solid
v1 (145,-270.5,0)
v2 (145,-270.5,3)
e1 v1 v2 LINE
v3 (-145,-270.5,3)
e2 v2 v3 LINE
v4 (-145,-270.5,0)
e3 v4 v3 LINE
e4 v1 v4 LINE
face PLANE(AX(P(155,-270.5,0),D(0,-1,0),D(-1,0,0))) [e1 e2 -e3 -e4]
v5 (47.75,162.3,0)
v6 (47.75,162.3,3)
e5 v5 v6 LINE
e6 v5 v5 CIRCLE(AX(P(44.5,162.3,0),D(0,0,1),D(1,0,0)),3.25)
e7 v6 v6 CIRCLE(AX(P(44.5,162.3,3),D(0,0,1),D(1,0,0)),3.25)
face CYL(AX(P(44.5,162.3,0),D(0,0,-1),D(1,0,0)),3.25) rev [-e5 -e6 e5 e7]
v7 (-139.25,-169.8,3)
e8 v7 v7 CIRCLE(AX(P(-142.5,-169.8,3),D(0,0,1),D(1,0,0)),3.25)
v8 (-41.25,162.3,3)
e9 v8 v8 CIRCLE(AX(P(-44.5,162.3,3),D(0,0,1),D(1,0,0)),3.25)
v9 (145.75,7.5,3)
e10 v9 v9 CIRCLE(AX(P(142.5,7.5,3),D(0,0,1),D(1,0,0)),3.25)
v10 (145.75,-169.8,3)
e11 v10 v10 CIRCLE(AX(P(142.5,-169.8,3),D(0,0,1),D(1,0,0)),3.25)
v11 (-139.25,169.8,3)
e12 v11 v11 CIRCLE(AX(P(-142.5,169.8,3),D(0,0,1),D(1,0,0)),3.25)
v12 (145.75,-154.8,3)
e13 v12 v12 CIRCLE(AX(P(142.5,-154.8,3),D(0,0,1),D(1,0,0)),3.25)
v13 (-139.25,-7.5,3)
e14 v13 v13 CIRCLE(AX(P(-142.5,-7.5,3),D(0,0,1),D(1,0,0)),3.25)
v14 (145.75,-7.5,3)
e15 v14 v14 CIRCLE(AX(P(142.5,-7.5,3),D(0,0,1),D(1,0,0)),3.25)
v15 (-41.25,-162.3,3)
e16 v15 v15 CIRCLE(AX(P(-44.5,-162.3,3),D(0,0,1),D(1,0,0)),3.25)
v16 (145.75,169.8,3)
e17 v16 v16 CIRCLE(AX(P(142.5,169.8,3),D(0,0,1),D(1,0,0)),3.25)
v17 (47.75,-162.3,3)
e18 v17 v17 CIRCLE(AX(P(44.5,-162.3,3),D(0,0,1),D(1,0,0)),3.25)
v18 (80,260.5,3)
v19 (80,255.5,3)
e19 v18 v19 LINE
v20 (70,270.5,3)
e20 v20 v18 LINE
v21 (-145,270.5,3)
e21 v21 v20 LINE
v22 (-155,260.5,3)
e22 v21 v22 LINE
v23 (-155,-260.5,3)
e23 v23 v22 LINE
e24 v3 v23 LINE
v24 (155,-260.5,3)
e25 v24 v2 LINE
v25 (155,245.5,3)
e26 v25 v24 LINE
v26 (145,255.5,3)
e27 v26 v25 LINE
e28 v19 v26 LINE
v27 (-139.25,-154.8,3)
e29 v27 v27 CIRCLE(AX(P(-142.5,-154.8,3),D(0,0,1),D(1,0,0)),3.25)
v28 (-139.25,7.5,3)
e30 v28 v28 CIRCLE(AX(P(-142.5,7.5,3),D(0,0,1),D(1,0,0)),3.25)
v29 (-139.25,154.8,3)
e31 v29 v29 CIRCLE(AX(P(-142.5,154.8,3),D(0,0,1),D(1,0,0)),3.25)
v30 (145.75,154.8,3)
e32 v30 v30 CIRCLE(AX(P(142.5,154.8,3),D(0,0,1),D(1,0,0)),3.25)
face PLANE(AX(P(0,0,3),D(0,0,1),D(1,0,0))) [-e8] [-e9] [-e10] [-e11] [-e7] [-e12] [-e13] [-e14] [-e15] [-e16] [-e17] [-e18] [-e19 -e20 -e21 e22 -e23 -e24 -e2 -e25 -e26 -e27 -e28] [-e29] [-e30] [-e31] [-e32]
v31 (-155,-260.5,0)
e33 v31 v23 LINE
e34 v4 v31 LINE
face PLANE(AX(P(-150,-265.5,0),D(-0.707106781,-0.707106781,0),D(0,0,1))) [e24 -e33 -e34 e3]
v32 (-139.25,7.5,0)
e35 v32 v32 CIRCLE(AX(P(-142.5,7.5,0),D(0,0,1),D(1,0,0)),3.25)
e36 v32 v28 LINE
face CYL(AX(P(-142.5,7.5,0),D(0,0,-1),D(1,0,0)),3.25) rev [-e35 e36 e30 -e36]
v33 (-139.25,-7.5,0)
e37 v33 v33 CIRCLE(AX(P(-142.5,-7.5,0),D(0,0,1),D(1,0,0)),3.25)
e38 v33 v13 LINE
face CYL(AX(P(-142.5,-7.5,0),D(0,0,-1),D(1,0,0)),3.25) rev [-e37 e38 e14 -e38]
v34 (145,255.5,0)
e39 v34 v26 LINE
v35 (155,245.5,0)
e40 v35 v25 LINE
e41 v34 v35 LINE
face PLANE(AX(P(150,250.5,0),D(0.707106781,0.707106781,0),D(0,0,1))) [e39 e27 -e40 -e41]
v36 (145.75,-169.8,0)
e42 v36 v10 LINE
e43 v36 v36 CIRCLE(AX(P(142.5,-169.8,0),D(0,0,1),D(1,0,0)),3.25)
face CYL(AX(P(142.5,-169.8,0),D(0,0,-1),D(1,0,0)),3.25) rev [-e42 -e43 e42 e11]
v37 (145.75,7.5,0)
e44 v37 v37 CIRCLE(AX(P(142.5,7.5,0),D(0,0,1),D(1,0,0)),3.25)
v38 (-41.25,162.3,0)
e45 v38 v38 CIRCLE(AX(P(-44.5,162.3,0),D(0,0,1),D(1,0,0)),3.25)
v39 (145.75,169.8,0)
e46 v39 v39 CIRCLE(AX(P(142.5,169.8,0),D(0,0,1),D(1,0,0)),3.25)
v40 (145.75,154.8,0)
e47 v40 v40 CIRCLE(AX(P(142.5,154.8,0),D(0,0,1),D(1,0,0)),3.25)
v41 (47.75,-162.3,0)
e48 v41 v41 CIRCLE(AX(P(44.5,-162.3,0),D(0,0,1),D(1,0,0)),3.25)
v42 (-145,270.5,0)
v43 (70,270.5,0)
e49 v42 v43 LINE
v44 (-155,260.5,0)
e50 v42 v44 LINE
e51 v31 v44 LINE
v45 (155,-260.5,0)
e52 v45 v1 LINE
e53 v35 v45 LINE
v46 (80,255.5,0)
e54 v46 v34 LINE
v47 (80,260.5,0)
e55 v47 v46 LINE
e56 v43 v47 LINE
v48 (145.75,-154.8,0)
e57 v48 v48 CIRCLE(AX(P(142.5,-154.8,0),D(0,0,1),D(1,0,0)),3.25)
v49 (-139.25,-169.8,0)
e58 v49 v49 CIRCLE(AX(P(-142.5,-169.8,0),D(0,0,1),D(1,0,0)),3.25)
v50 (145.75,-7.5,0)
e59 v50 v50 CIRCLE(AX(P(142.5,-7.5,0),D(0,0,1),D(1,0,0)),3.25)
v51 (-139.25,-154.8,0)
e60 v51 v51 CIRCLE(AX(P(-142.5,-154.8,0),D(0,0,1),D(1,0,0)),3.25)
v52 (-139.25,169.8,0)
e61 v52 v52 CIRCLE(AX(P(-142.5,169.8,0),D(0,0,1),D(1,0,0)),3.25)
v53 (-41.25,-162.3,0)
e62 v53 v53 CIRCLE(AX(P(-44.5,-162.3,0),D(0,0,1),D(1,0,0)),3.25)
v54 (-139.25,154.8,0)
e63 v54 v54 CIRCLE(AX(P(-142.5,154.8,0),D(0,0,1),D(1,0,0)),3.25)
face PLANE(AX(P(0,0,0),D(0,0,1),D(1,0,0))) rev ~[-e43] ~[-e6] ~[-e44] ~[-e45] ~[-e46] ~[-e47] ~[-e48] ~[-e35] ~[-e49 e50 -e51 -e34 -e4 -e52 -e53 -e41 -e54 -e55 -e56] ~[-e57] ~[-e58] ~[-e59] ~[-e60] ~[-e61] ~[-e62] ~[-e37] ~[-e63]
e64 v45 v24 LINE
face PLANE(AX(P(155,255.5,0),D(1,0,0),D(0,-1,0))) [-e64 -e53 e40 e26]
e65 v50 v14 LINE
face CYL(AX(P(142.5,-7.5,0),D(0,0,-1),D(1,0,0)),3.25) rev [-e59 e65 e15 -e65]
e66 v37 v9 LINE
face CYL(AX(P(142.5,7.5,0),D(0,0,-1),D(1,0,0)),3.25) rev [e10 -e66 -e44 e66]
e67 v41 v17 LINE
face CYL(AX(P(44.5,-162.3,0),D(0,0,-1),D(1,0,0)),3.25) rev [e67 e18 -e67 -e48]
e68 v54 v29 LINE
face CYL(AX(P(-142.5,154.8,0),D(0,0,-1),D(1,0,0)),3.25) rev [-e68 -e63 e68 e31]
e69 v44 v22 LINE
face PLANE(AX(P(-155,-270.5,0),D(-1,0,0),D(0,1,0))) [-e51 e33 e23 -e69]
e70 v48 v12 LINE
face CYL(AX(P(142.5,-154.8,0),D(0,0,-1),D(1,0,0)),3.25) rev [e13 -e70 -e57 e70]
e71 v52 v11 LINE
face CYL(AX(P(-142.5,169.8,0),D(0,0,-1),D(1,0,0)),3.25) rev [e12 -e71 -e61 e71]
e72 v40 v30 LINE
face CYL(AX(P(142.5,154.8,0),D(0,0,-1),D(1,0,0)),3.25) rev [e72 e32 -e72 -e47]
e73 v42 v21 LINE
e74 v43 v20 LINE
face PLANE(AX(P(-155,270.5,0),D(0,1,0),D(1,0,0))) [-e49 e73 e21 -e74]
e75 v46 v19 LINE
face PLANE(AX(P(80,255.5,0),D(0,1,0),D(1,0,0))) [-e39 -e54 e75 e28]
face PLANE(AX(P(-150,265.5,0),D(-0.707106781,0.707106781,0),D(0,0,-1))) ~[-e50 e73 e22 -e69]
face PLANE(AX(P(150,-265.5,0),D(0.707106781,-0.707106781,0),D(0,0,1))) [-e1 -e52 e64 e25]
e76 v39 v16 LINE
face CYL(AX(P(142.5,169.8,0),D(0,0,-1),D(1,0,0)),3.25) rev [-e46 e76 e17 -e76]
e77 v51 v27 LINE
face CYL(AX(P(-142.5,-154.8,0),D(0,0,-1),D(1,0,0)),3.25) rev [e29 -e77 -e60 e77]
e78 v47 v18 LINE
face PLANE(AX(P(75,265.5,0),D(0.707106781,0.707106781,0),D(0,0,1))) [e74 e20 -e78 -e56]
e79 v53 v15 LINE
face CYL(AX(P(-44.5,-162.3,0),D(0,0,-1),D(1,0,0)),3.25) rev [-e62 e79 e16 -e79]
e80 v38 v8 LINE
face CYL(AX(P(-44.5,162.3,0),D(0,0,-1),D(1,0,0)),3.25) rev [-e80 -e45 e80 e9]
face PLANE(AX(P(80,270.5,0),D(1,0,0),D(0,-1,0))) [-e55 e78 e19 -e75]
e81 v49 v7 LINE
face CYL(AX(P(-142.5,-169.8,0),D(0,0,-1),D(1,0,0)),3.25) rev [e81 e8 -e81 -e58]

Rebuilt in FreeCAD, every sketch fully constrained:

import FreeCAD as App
import Part
import Sketcher

V = App.Vector


def edges_at(feature, points):
    """Names of the edges that pass closest to the given points."""
    edges = feature.Shape.Edges
    near = lambda p: min(range(len(edges)), key=lambda i: edges[i].distToShape(Part.Vertex(*p))[0])
    return sorted({f"Edge{near(p) + 1}" for p in points})


def add_polygon(sketch, points):
    """Adds a closed chain of lines whose ends are joined by coincident constraints."""
    first, n = sketch.GeometryCount, len(points)
    for a, b in zip(points, points[1:] + points[:1]):
        sketch.addGeometry(Part.LineSegment(App.Vector(*a, 0), App.Vector(*b, 0)), False)
    for i in range(n):
        sketch.addConstraint(Sketcher.Constraint("Coincident", first + i, 2, first + (i + 1) % n, 1))

doc = App.newDocument("Part")
body = doc.addObject("PartDesign::Body", "Body")

sketch1 = body.newObject("Sketcher::SketchObject", "Sketch")
sketch1.AttachmentSupport = (doc.getObject("XY_Plane"), [""])
sketch1.MapMode = "FlatFace"
add_polygon(sketch1, [(80, 270.5), (-155, 270.5), (-155, -270.5), (155, -270.5), (155, 255.5), (80, 255.5)])
sketch1.addGeometry(Part.Circle(V(-142.5, -169.8, 0), V(0, 0, 1), 3.2), False)
sketch1.addGeometry(Part.Circle(V(-142.5, -154.8, 0), V(0, 0, 1), 3.2), False)
sketch1.addGeometry(Part.Circle(V(-44.5, -162.3, 0), V(0, 0, 1), 3.2), False)
sketch1.addGeometry(Part.Circle(V(-142.5, -7.5, 0), V(0, 0, 1), 3.2), False)
sketch1.addGeometry(Part.Circle(V(44.5, -162.3, 0), V(0, 0, 1), 3.2), False)
sketch1.addGeometry(Part.Circle(V(142.5, -169.8, 0), V(0, 0, 1), 3.2), False)
sketch1.addGeometry(Part.Circle(V(142.5, -154.8, 0), V(0, 0, 1), 3.2), False)
sketch1.addGeometry(Part.Circle(V(142.5, -7.5, 0), V(0, 0, 1), 3.2), False)
sketch1.addGeometry(Part.Circle(V(-142.5, 7.5, 0), V(0, 0, 1), 3.2), False)
sketch1.addGeometry(Part.Circle(V(-142.5, 154.8, 0), V(0, 0, 1), 3.2), False)
sketch1.addGeometry(Part.Circle(V(-142.5, 169.8, 0), V(0, 0, 1), 3.2), False)
sketch1.addGeometry(Part.Circle(V(-44.5, 162.3, 0), V(0, 0, 1), 3.2), False)
sketch1.addGeometry(Part.Circle(V(142.5, 7.5, 0), V(0, 0, 1), 3.2), False)
sketch1.addGeometry(Part.Circle(V(44.5, 162.3, 0), V(0, 0, 1), 3.2), False)
sketch1.addGeometry(Part.Circle(V(142.5, 154.8, 0), V(0, 0, 1), 3.2), False)
sketch1.addGeometry(Part.Circle(V(142.5, 169.8, 0), V(0, 0, 1), 3.2), False)
sketch1.addConstraint(Sketcher.Constraint("Horizontal", 0))
sketch1.addConstraint(Sketcher.Constraint("Vertical", 1))
sketch1.addConstraint(Sketcher.Constraint("Horizontal", 2))
sketch1.addConstraint(Sketcher.Constraint("Vertical", 3))
sketch1.addConstraint(Sketcher.Constraint("Horizontal", 4))
sketch1.addConstraint(Sketcher.Constraint("Vertical", 5))
sketch1.addConstraint(Sketcher.Constraint("Equal", 6, 7))
sketch1.addConstraint(Sketcher.Constraint("Equal", 7, 8))
sketch1.addConstraint(Sketcher.Constraint("Equal", 8, 9))
sketch1.addConstraint(Sketcher.Constraint("Equal", 9, 10))
sketch1.addConstraint(Sketcher.Constraint("Equal", 10, 11))
sketch1.addConstraint(Sketcher.Constraint("Equal", 11, 12))
sketch1.addConstraint(Sketcher.Constraint("Equal", 12, 13))
sketch1.addConstraint(Sketcher.Constraint("Equal", 13, 14))
sketch1.addConstraint(Sketcher.Constraint("Equal", 14, 15))
sketch1.addConstraint(Sketcher.Constraint("Equal", 15, 16))
sketch1.addConstraint(Sketcher.Constraint("Equal", 16, 17))
sketch1.addConstraint(Sketcher.Constraint("Equal", 17, 18))
sketch1.addConstraint(Sketcher.Constraint("Equal", 18, 19))
sketch1.addConstraint(Sketcher.Constraint("Equal", 19, 20))
sketch1.addConstraint(Sketcher.Constraint("Equal", 20, 21))
sketch1.addConstraint(Sketcher.Constraint("Symmetric", 13, 3, 14, 3, -1, 1))
sketch1.addConstraint(Sketcher.Constraint("Symmetric", 12, 3, 15, 3, -1, 1))
sketch1.addConstraint(Sketcher.Constraint("Symmetric", 11, 3, 16, 3, -1, 1))
sketch1.addConstraint(Sketcher.Constraint("Symmetric", 10, 3, 17, 3, -1, 1))
sketch1.addConstraint(Sketcher.Constraint("Symmetric", 9, 3, 18, 3, -1, 1))
sketch1.addConstraint(Sketcher.Constraint("Symmetric", 8, 3, 19, 3, -1, 1))
sketch1.addConstraint(Sketcher.Constraint("Symmetric", 7, 3, 20, 3, -1, 1))
sketch1.addConstraint(Sketcher.Constraint("Symmetric", 6, 3, 21, 3, -1, 1))
sketch1.addConstraint(Sketcher.Constraint("Symmetric", 0, 2, 2, 2, -1, 1))
sketch1.addConstraint(Sketcher.Constraint("Symmetric", 8, 3, 10, 3, -2))
sketch1.addConstraint(Sketcher.Constraint("Symmetric", 6, 3, 11, 3, -2))
sketch1.addConstraint(Sketcher.Constraint("Symmetric", 7, 3, 12, 3, -2))
sketch1.addConstraint(Sketcher.Constraint("Symmetric", 9, 3, 13, 3, -2))
sketch1.addConstraint(Sketcher.Constraint("Vertical", 6, 3, 7, 3))
sketch1.addConstraint(Sketcher.Constraint("Vertical", 7, 3, 9, 3))
sketch1.addConstraint(Sketcher.Constraint("Diameter", 6, 6.5))
sketch1.addConstraint(Sketcher.Constraint("DistanceX", 2, 1, 2, 2, 310.0))
sketch1.addConstraint(Sketcher.Constraint("DistanceY", 1, 2, 1, 1, 541.0))
sketch1.addConstraint(Sketcher.Constraint("DistanceY", 5, 1, 5, 2, 15.0))
sketch1.addConstraint(Sketcher.Constraint("DistanceY", 6, 3, 7, 3, 15.0))
sketch1.addConstraint(Sketcher.Constraint("DistanceY", 9, 3, 14, 3, 15.0))
sketch1.addConstraint(Sketcher.Constraint("DistanceX", 8, 3, -1, 1, 44.5))
sketch1.addConstraint(Sketcher.Constraint("DistanceY", 6, 3, 8, 3, 7.5))
sketch1.addConstraint(Sketcher.Constraint("DistanceX", 0, 2, 16, 3, 12.5))
sketch1.addConstraint(Sketcher.Constraint("DistanceY", 17, 3, 0, 2, 108.2))
sketch1.addConstraint(Sketcher.Constraint("DistanceX", 0, 2, 0, 1, 235.0))
pad1 = body.newObject("PartDesign::Pad", "Pad")
pad1.Profile = sketch1
pad1.Length = 3
doc.recompute()

chamfer = body.newObject("PartDesign::Chamfer", "Chamfer")
chamfer.Base = (pad1, edges_at(pad1, [
    (80, 270.5, 1.5),
    (155, 255.5, 1.5),
    (155, -270.5, 1.5),
    (-155, -270.5, 1.5),
    (-155, 270.5, 1.5),
]))
chamfer.Size = 10

doc.recompute()
